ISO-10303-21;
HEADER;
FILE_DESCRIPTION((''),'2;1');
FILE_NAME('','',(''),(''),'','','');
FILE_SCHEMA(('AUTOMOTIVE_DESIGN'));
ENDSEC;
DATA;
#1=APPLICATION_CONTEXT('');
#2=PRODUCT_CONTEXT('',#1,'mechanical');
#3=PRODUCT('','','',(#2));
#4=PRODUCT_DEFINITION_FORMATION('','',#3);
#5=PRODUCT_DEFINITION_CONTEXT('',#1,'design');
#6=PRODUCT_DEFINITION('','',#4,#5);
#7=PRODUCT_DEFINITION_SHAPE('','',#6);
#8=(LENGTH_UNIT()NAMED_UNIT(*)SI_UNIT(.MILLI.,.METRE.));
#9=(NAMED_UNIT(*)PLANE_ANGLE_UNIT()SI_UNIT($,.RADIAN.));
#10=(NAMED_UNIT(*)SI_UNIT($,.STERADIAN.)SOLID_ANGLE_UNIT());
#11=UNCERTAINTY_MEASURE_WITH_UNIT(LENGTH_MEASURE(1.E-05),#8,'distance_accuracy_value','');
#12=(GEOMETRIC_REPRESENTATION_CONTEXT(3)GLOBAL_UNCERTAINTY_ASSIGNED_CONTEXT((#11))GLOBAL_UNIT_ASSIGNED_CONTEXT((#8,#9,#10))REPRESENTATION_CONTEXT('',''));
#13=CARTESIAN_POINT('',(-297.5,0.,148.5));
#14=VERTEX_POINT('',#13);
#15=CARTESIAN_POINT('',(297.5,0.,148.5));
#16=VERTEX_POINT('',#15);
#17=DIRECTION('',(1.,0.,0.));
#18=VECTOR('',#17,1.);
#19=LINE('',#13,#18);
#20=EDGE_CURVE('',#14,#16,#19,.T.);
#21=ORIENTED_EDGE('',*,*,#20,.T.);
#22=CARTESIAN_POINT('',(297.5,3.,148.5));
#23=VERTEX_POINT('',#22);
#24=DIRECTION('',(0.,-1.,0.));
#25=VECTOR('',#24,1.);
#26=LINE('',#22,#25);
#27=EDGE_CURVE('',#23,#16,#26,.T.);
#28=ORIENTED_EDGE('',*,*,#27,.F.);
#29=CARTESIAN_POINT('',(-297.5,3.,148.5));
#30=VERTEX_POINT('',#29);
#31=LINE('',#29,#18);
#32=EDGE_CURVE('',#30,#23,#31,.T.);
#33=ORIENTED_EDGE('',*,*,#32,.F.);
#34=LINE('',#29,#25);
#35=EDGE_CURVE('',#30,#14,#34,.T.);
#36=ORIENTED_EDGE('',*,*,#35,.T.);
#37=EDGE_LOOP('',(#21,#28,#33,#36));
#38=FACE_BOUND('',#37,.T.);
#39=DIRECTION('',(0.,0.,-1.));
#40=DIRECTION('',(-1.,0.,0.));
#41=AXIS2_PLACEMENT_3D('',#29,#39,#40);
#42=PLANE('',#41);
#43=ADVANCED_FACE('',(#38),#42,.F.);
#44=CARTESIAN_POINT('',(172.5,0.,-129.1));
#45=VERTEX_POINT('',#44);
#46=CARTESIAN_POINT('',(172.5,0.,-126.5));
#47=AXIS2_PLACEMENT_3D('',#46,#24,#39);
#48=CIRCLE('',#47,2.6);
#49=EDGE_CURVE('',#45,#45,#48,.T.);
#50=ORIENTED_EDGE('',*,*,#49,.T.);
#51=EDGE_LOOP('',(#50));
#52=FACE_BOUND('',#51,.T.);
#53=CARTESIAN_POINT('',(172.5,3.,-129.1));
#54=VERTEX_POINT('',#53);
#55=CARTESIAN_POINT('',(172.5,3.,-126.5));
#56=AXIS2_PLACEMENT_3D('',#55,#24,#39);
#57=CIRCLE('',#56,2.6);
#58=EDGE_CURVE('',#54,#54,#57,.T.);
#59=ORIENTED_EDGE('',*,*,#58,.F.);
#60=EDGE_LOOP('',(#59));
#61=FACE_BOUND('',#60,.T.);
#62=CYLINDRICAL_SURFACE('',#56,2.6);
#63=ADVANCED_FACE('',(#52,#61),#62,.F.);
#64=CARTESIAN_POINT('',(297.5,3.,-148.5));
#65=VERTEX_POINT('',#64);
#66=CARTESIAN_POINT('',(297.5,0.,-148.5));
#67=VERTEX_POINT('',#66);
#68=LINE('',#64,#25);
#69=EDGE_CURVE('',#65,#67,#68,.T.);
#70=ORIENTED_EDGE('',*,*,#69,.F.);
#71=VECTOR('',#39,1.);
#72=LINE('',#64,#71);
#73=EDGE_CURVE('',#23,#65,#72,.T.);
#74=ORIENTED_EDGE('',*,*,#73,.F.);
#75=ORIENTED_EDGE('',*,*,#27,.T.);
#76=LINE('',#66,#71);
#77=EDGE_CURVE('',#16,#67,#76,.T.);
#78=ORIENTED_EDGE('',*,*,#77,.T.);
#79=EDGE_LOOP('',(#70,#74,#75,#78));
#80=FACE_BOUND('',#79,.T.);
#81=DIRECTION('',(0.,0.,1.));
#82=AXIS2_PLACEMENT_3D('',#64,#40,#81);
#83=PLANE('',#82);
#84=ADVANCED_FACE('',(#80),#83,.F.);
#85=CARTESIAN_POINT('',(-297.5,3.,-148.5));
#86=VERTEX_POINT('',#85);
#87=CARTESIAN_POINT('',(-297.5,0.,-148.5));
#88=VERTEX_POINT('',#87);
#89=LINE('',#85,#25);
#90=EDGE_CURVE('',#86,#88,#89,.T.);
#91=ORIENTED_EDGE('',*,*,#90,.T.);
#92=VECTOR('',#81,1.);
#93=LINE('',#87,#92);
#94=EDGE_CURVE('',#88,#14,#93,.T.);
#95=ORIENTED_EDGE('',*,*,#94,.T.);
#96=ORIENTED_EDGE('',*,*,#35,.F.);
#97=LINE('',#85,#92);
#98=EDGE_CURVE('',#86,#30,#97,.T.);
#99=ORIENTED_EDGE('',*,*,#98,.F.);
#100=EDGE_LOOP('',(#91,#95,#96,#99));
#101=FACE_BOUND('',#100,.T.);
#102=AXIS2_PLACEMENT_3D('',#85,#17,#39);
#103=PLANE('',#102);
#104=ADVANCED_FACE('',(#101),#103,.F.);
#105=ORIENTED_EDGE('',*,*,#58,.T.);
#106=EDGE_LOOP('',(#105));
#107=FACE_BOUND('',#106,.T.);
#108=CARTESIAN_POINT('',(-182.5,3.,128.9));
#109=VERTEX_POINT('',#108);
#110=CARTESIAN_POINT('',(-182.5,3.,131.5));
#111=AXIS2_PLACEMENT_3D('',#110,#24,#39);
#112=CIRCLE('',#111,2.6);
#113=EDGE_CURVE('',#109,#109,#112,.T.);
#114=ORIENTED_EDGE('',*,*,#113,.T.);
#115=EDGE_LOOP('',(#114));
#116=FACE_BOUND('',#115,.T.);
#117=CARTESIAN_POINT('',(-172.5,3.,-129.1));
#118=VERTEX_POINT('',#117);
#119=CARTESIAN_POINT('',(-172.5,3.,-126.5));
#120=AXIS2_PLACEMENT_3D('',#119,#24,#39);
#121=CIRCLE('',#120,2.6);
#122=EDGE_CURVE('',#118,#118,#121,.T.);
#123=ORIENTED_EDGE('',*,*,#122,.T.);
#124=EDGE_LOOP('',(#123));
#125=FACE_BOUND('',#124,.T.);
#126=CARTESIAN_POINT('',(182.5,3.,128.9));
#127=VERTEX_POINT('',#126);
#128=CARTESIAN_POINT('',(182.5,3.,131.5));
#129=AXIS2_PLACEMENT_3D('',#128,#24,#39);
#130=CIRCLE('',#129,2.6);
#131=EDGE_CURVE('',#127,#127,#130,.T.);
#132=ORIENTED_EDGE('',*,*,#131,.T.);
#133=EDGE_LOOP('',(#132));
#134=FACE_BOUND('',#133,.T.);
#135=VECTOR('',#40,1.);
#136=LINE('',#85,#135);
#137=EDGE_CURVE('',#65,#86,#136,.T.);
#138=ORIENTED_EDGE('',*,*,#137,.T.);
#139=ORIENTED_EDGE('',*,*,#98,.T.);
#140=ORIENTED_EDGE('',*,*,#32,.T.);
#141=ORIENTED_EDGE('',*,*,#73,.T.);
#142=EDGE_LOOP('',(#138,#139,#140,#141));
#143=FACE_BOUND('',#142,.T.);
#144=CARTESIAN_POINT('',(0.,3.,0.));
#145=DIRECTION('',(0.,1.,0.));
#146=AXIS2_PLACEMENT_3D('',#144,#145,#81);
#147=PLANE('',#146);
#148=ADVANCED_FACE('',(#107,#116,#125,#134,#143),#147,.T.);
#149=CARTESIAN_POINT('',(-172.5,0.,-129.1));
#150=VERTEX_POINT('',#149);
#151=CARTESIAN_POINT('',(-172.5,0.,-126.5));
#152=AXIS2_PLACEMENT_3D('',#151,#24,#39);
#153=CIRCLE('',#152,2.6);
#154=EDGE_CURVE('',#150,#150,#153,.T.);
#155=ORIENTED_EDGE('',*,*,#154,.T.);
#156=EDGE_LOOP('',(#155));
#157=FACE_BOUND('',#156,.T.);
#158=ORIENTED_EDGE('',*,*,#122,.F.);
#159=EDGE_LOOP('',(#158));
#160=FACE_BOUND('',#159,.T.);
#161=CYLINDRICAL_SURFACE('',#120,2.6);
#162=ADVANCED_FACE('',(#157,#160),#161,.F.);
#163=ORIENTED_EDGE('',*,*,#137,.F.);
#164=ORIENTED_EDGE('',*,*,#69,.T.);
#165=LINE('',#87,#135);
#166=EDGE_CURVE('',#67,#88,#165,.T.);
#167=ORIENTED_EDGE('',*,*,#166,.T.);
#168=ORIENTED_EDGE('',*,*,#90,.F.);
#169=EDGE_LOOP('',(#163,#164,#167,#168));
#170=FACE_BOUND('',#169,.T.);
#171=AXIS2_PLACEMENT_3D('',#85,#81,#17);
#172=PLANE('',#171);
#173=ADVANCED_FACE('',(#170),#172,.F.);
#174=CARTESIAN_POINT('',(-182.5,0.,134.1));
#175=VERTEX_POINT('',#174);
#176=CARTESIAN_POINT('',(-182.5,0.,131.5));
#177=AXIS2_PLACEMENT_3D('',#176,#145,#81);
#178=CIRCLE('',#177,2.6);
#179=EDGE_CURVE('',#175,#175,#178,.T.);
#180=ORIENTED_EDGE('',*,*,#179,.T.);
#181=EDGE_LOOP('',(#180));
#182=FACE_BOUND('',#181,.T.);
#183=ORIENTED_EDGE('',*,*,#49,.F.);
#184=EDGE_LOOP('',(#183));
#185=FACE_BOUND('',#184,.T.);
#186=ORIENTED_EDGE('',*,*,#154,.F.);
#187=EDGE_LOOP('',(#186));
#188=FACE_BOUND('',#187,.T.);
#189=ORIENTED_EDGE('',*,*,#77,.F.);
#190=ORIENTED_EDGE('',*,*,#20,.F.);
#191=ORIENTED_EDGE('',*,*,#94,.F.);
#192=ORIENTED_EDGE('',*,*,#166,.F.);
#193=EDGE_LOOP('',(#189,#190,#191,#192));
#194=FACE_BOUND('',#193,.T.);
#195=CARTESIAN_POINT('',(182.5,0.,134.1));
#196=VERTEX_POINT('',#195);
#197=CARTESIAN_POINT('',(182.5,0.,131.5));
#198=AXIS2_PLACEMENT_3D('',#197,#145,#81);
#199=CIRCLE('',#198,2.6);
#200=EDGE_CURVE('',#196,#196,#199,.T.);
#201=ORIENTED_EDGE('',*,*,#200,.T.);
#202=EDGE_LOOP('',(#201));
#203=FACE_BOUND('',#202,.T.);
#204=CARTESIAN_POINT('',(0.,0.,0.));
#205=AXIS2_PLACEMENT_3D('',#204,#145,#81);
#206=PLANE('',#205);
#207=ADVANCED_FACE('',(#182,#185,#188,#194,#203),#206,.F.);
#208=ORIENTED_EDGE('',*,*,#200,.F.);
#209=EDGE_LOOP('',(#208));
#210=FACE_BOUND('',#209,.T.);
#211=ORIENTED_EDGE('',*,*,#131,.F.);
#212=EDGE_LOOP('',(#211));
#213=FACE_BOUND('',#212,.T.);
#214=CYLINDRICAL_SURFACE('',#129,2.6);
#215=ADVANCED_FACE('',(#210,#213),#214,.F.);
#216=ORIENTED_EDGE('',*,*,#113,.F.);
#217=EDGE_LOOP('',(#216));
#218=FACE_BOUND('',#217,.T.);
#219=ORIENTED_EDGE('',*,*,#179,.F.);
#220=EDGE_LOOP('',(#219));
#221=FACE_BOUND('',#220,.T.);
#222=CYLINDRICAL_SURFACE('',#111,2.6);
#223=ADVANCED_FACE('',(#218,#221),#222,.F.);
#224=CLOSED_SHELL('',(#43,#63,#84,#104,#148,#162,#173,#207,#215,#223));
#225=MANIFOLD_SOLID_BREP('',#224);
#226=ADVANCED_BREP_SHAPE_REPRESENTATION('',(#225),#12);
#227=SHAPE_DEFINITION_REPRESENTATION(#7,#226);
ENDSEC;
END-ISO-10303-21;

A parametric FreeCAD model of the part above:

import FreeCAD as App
import Part
import Sketcher
from FreeCAD import Vector
Q = App.Units.Quantity

doc = App.newDocument("Part")
body = doc.addObject("PartDesign::Body", "Body")

# Sketch on XZ plane
sketch1 = body.newObject("Sketcher::SketchObject", "Sketch")
sketch1.AttachmentSupport = (doc.getObject("XZ_Plane"), [""])
sketch1.MapMode = "FlatFace"
sketch1.addGeometry([
    Part.LineSegment(Vector(-298, -148, 0), Vector(-298, 148, 0)),
    Part.LineSegment(Vector(-298, 148, 0), Vector(298, 148, 0)),
    Part.LineSegment(Vector(298, 148, 0), Vector(298, -148, 0)),
    Part.LineSegment(Vector(298, -148, 0), Vector(-298, -148, 0)),
], False)
sketch1.addConstraint([
    Sketcher.Constraint("Coincident", 0, 2, 1, 1),
    Sketcher.Constraint("Coincident", 1, 2, 2, 1),
    Sketcher.Constraint("Coincident", 2, 2, 3, 1),
    Sketcher.Constraint("Coincident", 3, 2, 0, 1),
    Sketcher.Constraint("Vertical", 0),
    Sketcher.Constraint("Horizontal", 1),
    Sketcher.Constraint("Vertical", 2),
    Sketcher.Constraint("Horizontal", 3),
    Sketcher.Constraint("Symmetric", 0, 2, 2, 2, -1, 1),
    Sketcher.Constraint("DistanceX", 1, 1, 1, 2, Q("595 mm")),
    Sketcher.Constraint("DistanceY", 0, 1, 0, 2, Q("297 mm")),
])
pad1 = body.newObject("PartDesign::Pad", "Pad")
pad1.Profile = sketch1
pad1.Length = 3
pad1.Reversed = True

# Sketch on XZ plane
sketch2 = body.newObject("Sketcher::SketchObject", "Sketch001")
sketch2.AttachmentSupport = (doc.getObject("XZ_Plane"), [""])
sketch2.MapMode = "FlatFace"
sketch2.addGeometry([
    Part.Circle(Vector(182.5, 131.5, 0), Vector(0, 0, 1), 2.6),
    Part.Circle(Vector(-182.5, 131.5, 0), Vector(0, 0, 1), 2.6),
], False)
sketch2.addConstraint([
    Sketcher.Constraint("Equal", 0, 1),
    Sketcher.Constraint("Symmetric", 0, 3, 1, 3, -2),
    Sketcher.Constraint("Diameter", 0, Q("5.2 mm")),
    Sketcher.Constraint("DistanceX", 1, 3, 0, 3, Q("365 mm")),
    Sketcher.Constraint("DistanceY", -1, 1, 0, 3, Q("131.5 mm")),
])
pocket1 = body.newObject("PartDesign::Pocket", "Pocket")
pocket1.Profile = sketch2
pocket1.Type = "ThroughAll"
pocket1.Midplane = True

# Sketch on XZ plane
sketch3 = body.newObject("Sketcher::SketchObject", "Sketch002")
sketch3.AttachmentSupport = (doc.getObject("XZ_Plane"), [""])
sketch3.MapMode = "FlatFace"
sketch3.addGeometry([
    Part.Circle(Vector(172.5, -126.5, 0), Vector(0, 0, 1), 2.6),
    Part.Circle(Vector(-172.5, -126.5, 0), Vector(0, 0, 1), 2.6),
], False)
sketch3.addConstraint([
    Sketcher.Constraint("Equal", 0, 1),
    Sketcher.Constraint("Symmetric", 0, 3, 1, 3, -2),
    Sketcher.Constraint("Diameter", 0, Q("5.2 mm")),
    Sketcher.Constraint("DistanceX", 1, 3, 0, 3, Q("345 mm")),
    Sketcher.Constraint("DistanceY", 0, 3, -1, 1, Q("126.5 mm")),
])
pocket2 = body.newObject("PartDesign::Pocket", "Pocket001")
pocket2.Profile = sketch3
pocket2.Type = "ThroughAll"
pocket2.Midplane = True

doc.recompute()
